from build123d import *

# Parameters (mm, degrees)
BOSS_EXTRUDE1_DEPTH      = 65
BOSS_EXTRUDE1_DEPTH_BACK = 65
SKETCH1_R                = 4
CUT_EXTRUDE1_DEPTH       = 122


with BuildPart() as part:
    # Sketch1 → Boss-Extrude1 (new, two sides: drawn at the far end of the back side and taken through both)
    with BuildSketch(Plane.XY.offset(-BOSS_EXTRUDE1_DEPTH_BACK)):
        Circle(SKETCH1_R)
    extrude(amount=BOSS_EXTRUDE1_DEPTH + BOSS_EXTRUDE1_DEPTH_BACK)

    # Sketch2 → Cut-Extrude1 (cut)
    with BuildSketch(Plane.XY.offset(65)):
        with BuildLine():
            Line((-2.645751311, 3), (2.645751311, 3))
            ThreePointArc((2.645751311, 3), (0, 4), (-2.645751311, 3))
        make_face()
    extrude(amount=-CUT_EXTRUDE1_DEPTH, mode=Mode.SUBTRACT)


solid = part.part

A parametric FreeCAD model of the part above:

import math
import FreeCAD as App
import Part
import Sketcher
Q = App.Units.Quantity

doc = App.newDocument("Part")
body = doc.addObject("PartDesign::Body", "Body")

# Sketch on XY plane
sketch1 = doc.addObject("Sketcher::SketchObject", "Sketch")
body.addObject(sketch1)
sketch1.AttachmentSupport = (doc.XY_Plane, [""])
sketch1.MapMode = "FlatFace"
sketch1.addGeometry(Part.Circle(App.Vector(0, 0, 0), App.Vector(0, 0, 1), 4), False)
sketch1.addConstraint([
    Sketcher.Constraint("Coincident", 0, 3, -1, 1),
    Sketcher.Constraint("Diameter", 0, Q("8 mm")),
])
pad1 = doc.addObject("PartDesign::Pad", "Pad")
body.addObject(pad1)
pad1.Profile = sketch1
pad1.Type = "TwoLengths"
pad1.Length = 65
pad1.Length2 = 65

# Sketch on XY plane
sketch2 = doc.addObject("Sketcher::SketchObject", "Sketch001")
body.addObject(sketch2)
sketch2.AttachmentSupport = (doc.XY_Plane, [""])
sketch2.MapMode = "FlatFace"
sketch2.AttachmentOffset = App.Placement(App.Vector(0, 0, 65), App.Rotation())
sketch2.addGeometry([
    Part.LineSegment(App.Vector(-2.645751, 3, 0), App.Vector(2.645751, 3, 0)),
    Part.ArcOfCircle(Part.Circle(App.Vector(0, 0, 0), App.Vector(0, 0, 1), 4), math.radians(48.590378), math.radians(131.409622)),
], False)
sketch2.addConstraint([
    Sketcher.Constraint("Coincident", 0, 1, 1, 2),
    Sketcher.Constraint("Coincident", 1, 1, 0, 2),
    Sketcher.Constraint("Horizontal", 0),
    Sketcher.Constraint("Coincident", 1, 3, -1, 1),
    Sketcher.Constraint("Radius", 1, Q("4 mm")),
    Sketcher.Constraint("DistanceY", -1, 1, 0, 1, Q("3 mm")),
])
pocket1 = doc.addObject("PartDesign::Pocket", "Pocket")
body.addObject(pocket1)
pocket1.Profile = sketch2
pocket1.Length = 122

doc.recompute()
